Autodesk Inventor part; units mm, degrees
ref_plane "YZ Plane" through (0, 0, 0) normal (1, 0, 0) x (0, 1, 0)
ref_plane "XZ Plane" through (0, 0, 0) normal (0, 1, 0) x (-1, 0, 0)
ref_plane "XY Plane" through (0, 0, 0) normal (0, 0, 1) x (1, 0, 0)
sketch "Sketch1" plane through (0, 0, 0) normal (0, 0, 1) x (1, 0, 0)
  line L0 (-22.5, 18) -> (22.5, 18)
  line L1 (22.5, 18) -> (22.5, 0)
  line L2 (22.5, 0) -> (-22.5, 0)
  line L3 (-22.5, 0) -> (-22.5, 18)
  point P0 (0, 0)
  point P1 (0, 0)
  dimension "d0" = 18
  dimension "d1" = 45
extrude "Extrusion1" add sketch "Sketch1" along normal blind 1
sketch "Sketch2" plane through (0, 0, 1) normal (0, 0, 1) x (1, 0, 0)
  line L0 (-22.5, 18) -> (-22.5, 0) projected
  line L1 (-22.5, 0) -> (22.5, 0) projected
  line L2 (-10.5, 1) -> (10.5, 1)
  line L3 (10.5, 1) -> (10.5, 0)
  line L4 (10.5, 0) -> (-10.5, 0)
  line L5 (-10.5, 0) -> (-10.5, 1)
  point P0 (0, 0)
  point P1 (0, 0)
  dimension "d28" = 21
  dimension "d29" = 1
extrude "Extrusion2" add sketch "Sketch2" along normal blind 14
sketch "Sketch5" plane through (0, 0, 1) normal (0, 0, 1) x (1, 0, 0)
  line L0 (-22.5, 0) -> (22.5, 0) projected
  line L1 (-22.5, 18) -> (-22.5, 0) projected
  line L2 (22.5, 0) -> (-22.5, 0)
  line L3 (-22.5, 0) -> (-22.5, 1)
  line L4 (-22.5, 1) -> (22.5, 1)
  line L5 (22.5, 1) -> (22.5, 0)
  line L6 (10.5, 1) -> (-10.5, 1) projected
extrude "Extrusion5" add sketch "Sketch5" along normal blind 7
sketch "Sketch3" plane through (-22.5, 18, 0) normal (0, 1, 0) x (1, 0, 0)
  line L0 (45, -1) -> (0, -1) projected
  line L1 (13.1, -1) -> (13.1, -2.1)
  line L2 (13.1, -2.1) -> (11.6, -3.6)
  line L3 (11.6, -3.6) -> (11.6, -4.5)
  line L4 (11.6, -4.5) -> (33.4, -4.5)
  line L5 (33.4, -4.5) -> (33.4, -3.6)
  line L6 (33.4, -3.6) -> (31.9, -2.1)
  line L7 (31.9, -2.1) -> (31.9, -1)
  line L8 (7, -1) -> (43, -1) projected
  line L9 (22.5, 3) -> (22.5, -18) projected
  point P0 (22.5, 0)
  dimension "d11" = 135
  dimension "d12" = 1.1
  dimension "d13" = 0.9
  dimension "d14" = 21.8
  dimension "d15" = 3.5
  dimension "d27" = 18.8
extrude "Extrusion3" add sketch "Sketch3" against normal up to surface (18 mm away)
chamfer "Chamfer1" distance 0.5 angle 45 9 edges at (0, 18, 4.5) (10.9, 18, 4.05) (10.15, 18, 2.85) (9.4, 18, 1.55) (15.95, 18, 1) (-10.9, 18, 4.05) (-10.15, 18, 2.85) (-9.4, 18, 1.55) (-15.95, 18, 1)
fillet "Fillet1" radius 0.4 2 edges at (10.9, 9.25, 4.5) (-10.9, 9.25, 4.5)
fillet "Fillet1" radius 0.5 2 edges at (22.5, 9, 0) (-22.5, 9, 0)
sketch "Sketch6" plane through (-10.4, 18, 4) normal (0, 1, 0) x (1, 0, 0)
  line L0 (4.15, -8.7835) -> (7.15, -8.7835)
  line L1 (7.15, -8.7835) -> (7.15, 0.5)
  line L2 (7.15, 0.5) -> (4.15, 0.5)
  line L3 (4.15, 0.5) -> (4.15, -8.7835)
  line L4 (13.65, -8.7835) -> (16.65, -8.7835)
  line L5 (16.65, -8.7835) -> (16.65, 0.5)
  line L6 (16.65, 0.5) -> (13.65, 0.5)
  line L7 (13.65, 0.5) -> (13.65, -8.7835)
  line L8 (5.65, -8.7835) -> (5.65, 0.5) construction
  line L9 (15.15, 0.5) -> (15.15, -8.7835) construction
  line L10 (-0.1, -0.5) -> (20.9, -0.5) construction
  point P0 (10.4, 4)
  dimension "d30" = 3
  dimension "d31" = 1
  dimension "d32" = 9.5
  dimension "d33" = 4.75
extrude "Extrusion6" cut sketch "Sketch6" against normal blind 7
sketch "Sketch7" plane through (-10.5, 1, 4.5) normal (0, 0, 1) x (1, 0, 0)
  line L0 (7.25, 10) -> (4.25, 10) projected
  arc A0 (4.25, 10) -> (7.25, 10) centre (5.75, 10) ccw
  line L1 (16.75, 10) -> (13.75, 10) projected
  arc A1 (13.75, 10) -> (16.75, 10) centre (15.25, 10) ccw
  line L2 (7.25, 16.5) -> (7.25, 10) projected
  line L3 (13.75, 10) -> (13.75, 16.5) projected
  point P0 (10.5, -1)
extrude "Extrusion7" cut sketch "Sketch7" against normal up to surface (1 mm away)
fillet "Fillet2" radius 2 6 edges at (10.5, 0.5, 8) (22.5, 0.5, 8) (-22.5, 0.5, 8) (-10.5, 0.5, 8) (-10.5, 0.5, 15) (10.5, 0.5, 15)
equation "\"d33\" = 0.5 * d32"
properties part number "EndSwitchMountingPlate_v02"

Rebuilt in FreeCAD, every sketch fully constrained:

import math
import FreeCAD as App
import Part
import Sketcher

V = App.Vector
Q = App.Units.Quantity


def edges_at(feature, points):
    """Names of the edges that pass closest to the given points."""
    edges = feature.Shape.Edges
    near = lambda p: min(range(len(edges)), key=lambda i: edges[i].distToShape(Part.Vertex(*p))[0])
    return sorted({f"Edge{near(p) + 1}" for p in points})

doc = App.newDocument("Part")
params = doc.addObject("Spreadsheet::Sheet", "Params")
for row, (alias, value) in enumerate([
    ("sketch1_width", "45 mm"),
    ("sketch1_height", "18 mm"),
    ("pad1_length", "1 mm"),
    ("sketch2_width", "21 mm"),
    ("sketch2_height", "1 mm"),
    ("pad2_length", "14 mm"),
    ("sketch3_width", "45 mm"),
    ("sketch3_height", "1 mm"),
    ("pad3_length", "7 mm"),
    ("sketch4_width", "18.8 mm"),
    ("sketch4_width2", "21.8 mm"),
    ("sketch4_height", "1.1 mm"),
    ("sketch4_height2", "0.9 mm"),
    ("pad4_length", "18 mm"),
    ("chamfer_size", "0.5 mm"),
    ("fillet_radius", "0.4 mm"),
    ("fillet2_radius", "0.5 mm"),
    ("sketch5_width", "3 mm"),
    ("pocket1_length", "7 mm"),
    ("sketch6_radius", "1.5 mm"),
    ("pocket2_length", "1 mm"),
    ("fillet3_radius", "2 mm"),
], start=1):
    params.set(f"A{row}", alias)
    params.set(f"B{row}", "=" + value)
    params.setAlias(f"B{row}", alias)

body = doc.addObject("PartDesign::Body", "Body")

# Sketch on XY plane
sketch1 = doc.addObject("Sketcher::SketchObject", "Sketch")
body.addObject(sketch1)
sketch1.AttachmentSupport = (doc.XY_Plane, [""])
sketch1.MapMode = "FlatFace"
sketch1.addGeometry(Part.LineSegment(V(22, 18, 0), V(-22, 18, 0)), False)
sketch1.addGeometry(Part.LineSegment(V(-22, 18, 0), V(-22, 0, 0)), False)
sketch1.addGeometry(Part.LineSegment(V(-22, 0, 0), V(22, 0, 0)), False)
sketch1.addGeometry(Part.LineSegment(V(22, 0, 0), V(22, 18, 0)), False)
sketch1.addConstraint(Sketcher.Constraint("Coincident", 0, 2, 1, 1))
sketch1.addConstraint(Sketcher.Constraint("Coincident", 1, 2, 2, 1))
sketch1.addConstraint(Sketcher.Constraint("Coincident", 2, 2, 3, 1))
sketch1.addConstraint(Sketcher.Constraint("Coincident", 3, 2, 0, 1))
sketch1.addConstraint(Sketcher.Constraint("Horizontal", 0))
sketch1.addConstraint(Sketcher.Constraint("Vertical", 1))
sketch1.addConstraint(Sketcher.Constraint("Horizontal", 2))
sketch1.addConstraint(Sketcher.Constraint("Vertical", 3))
sketch1.addConstraint(Sketcher.Constraint("Symmetric", 1, 2, 2, 2, -1, 1))
sketch1.addConstraint(Sketcher.Constraint("DistanceX", 0, 2, 0, 1, Q("45 mm")))
sketch1.addConstraint(Sketcher.Constraint("DistanceY", 1, 2, 1, 1, Q("18 mm")))
sketch1.setExpression("Constraints[9]", "Params.sketch1_width")
sketch1.setExpression("Constraints[10]", "Params.sketch1_height")
pad1 = doc.addObject("PartDesign::Pad", "Pad")
body.addObject(pad1)
pad1.Profile = sketch1
pad1.setExpression("Length", "Params.pad1_length")

# Sketch on XY plane
sketch2 = doc.addObject("Sketcher::SketchObject", "Sketch001")
body.addObject(sketch2)
sketch2.AttachmentSupport = (doc.XY_Plane, [""])
sketch2.MapMode = "FlatFace"
sketch2.AttachmentOffset = App.Placement(V(0, 0, 1), App.Rotation())
sketch2.addGeometry(Part.LineSegment(V(-10.5, 1, 0), V(-10.5, 0, 0)), False)
sketch2.addGeometry(Part.LineSegment(V(-10.5, 0, 0), V(10.5, 0, 0)), False)
sketch2.addGeometry(Part.LineSegment(V(10.5, 0, 0), V(10.5, 1, 0)), False)
sketch2.addGeometry(Part.LineSegment(V(10.5, 1, 0), V(-10.5, 1, 0)), False)
sketch2.addConstraint(Sketcher.Constraint("Coincident", 0, 2, 1, 1))
sketch2.addConstraint(Sketcher.Constraint("Coincident", 1, 2, 2, 1))
sketch2.addConstraint(Sketcher.Constraint("Coincident", 2, 2, 3, 1))
sketch2.addConstraint(Sketcher.Constraint("Coincident", 3, 2, 0, 1))
sketch2.addConstraint(Sketcher.Constraint("Vertical", 0))
sketch2.addConstraint(Sketcher.Constraint("Horizontal", 1))
sketch2.addConstraint(Sketcher.Constraint("Vertical", 2))
sketch2.addConstraint(Sketcher.Constraint("Horizontal", 3))
sketch2.addConstraint(Sketcher.Constraint("Symmetric", 0, 2, 1, 2, -1, 1))
sketch2.addConstraint(Sketcher.Constraint("DistanceX", 1, 1, 1, 2, Q("21 mm")))
sketch2.addConstraint(Sketcher.Constraint("DistanceY", 0, 2, 0, 1, Q("1 mm")))
sketch2.setExpression("Constraints[9]", "Params.sketch2_width")
sketch2.setExpression("Constraints[10]", "Params.sketch2_height")
pad2 = doc.addObject("PartDesign::Pad", "Pad001")
body.addObject(pad2)
pad2.Profile = sketch2
pad2.setExpression("Length", "Params.pad2_length")

# Sketch on XY plane
sketch3 = doc.addObject("Sketcher::SketchObject", "Sketch002")
body.addObject(sketch3)
sketch3.AttachmentSupport = (doc.XY_Plane, [""])
sketch3.MapMode = "FlatFace"
sketch3.AttachmentOffset = App.Placement(V(0, 0, 1), App.Rotation())
sketch3.addGeometry(Part.LineSegment(V(-22.5, 1, 0), V(-22.5, 0, 0)), False)
sketch3.addGeometry(Part.LineSegment(V(-22.5, 0, 0), V(22.5, 0, 0)), False)
sketch3.addGeometry(Part.LineSegment(V(22.5, 0, 0), V(22.5, 1, 0)), False)
sketch3.addGeometry(Part.LineSegment(V(22.5, 1, 0), V(-22.5, 1, 0)), False)
sketch3.addConstraint(Sketcher.Constraint("Coincident", 0, 2, 1, 1))
sketch3.addConstraint(Sketcher.Constraint("Coincident", 1, 2, 2, 1))
sketch3.addConstraint(Sketcher.Constraint("Coincident", 2, 2, 3, 1))
sketch3.addConstraint(Sketcher.Constraint("Coincident", 3, 2, 0, 1))
sketch3.addConstraint(Sketcher.Constraint("Vertical", 0))
sketch3.addConstraint(Sketcher.Constraint("Horizontal", 1))
sketch3.addConstraint(Sketcher.Constraint("Vertical", 2))
sketch3.addConstraint(Sketcher.Constraint("Horizontal", 3))
sketch3.addConstraint(Sketcher.Constraint("Symmetric", 0, 2, 1, 2, -1, 1))
sketch3.addConstraint(Sketcher.Constraint("DistanceX", 1, 1, 1, 2, Q("45 mm")))
sketch3.addConstraint(Sketcher.Constraint("DistanceY", 0, 2, 0, 1, Q("1 mm")))
sketch3.setExpression("Constraints[9]", "Params.sketch3_width")
sketch3.setExpression("Constraints[10]", "Params.sketch3_height")
pad3 = doc.addObject("PartDesign::Pad", "Pad002")
body.addObject(pad3)
pad3.Profile = sketch3
pad3.setExpression("Length", "Params.pad3_length")

# Sketch on XZ plane
sketch4 = doc.addObject("Sketcher::SketchObject", "Sketch003")
body.addObject(sketch4)
sketch4.AttachmentSupport = (doc.XZ_Plane, [""])
sketch4.MapMode = "FlatFace"
sketch4.AttachmentOffset = App.Placement(V(0, 0, -18), App.Rotation())
sketch4.addGeometry(Part.LineSegment(V(9.4, 2.1, 0), V(9.4, 1, 0)), False)
sketch4.addGeometry(Part.LineSegment(V(9.4, 1, 0), V(-9.4, 1, 0)), False)
sketch4.addGeometry(Part.LineSegment(V(-9.4, 1, 0), V(-9.4, 2.1, 0)), False)
sketch4.addGeometry(Part.LineSegment(V(-9.4, 2.1, 0), V(-10.9, 3.6, 0)), False)
sketch4.addGeometry(Part.LineSegment(V(-10.9, 3.6, 0), V(-10.9, 4.5, 0)), False)
sketch4.addGeometry(Part.LineSegment(V(-10.9, 4.5, 0), V(10.9, 4.5, 0)), False)
sketch4.addGeometry(Part.LineSegment(V(10.9, 4.5, 0), V(10.9, 3.6, 0)), False)
sketch4.addGeometry(Part.LineSegment(V(10.9, 3.6, 0), V(9.4, 2.1, 0)), False)
sketch4.addConstraint(Sketcher.Constraint("Coincident", 0, 2, 1, 1))
sketch4.addConstraint(Sketcher.Constraint("Coincident", 1, 2, 2, 1))
sketch4.addConstraint(Sketcher.Constraint("Coincident", 2, 2, 3, 1))
sketch4.addConstraint(Sketcher.Constraint("Coincident", 3, 2, 4, 1))
sketch4.addConstraint(Sketcher.Constraint("Coincident", 4, 2, 5, 1))
sketch4.addConstraint(Sketcher.Constraint("Coincident", 5, 2, 6, 1))
sketch4.addConstraint(Sketcher.Constraint("Coincident", 6, 2, 7, 1))
sketch4.addConstraint(Sketcher.Constraint("Coincident", 7, 2, 0, 1))
sketch4.addConstraint(Sketcher.Constraint("Vertical", 0))
sketch4.addConstraint(Sketcher.Constraint("Horizontal", 1))
sketch4.addConstraint(Sketcher.Constraint("Vertical", 2))
sketch4.addConstraint(Sketcher.Constraint("Vertical", 4))
sketch4.addConstraint(Sketcher.Constraint("Horizontal", 5))
sketch4.addConstraint(Sketcher.Constraint("Vertical", 6))
sketch4.addConstraint(Sketcher.Constraint("Symmetric", 3, 2, 6, 2, -2))
sketch4.addConstraint(Sketcher.Constraint("Symmetric", 2, 2, 7, 2, -2))
sketch4.addConstraint(Sketcher.Constraint("Perpendicular", 3, 7))
sketch4.addConstraint(Sketcher.Constraint("DistanceX", 1, 2, 1, 1, Q("18.8 mm")))
sketch4.addConstraint(Sketcher.Constraint("DistanceX", 5, 1, 5, 2, Q("21.8 mm")))
sketch4.addConstraint(Sketcher.Constraint("DistanceY", 0, 2, 0, 1, Q("1.1 mm")))
sketch4.addConstraint(Sketcher.Constraint("DistanceY", 4, 1, 4, 2, Q("0.9 mm")))
sketch4.addConstraint(Sketcher.Constraint("DistanceY", -1, 1, 0, 2, Q("1 mm")))
sketch4.setExpression("Constraints[17]", "Params.sketch4_width")
sketch4.setExpression("Constraints[18]", "Params.sketch4_width2")
sketch4.setExpression("Constraints[19]", "Params.sketch4_height")
sketch4.setExpression("Constraints[20]", "Params.sketch4_height2")
pad4 = doc.addObject("PartDesign::Pad", "Pad003")
body.addObject(pad4)
pad4.Profile = sketch4
pad4.setExpression("Length", "Params.pad4_length")
doc.recompute()

chamfer = doc.addObject("PartDesign::Chamfer", "Chamfer")
body.addObject(chamfer)
chamfer.Base = (pad4, edges_at(pad4, [
    (0, 18, 4.5),
    (10.9, 18, 4.05),
    (10.15, 18, 2.85),
    (9.4, 18, 1.55),
    (15.95, 18, 1),
    (-10.9, 18, 4.05),
    (-10.15, 18, 2.85),
    (-9.4, 18, 1.55),
    (-15.95, 18, 1),
]))
chamfer.setExpression("Size", "Params.chamfer_size")
doc.recompute()

fillet = doc.addObject("PartDesign::Fillet", "Fillet")
body.addObject(fillet)
fillet.Base = (chamfer, edges_at(chamfer, [(10.9, 9.25, 4.5), (-10.9, 9.25, 4.5)]))
fillet.setExpression("Radius", "Params.fillet_radius")
doc.recompute()

fillet2 = doc.addObject("PartDesign::Fillet", "Fillet001")
body.addObject(fillet2)
fillet2.Base = (fillet, edges_at(fillet, [(22.5, 9, 0), (-22.5, 9, 0)]))
fillet2.setExpression("Radius", "Params.fillet2_radius")

# Sketch on XZ plane
sketch5 = doc.addObject("Sketcher::SketchObject", "Sketch004")
body.addObject(sketch5)
sketch5.AttachmentSupport = (doc.XZ_Plane, [""])
sketch5.MapMode = "FlatFace"
sketch5.AttachmentOffset = App.Placement(V(0, 0, -18), App.Rotation())
sketch5.addGeometry(Part.LineSegment(V(-6.2, 3.5, 0), V(-6.2, 12.8, 0)), False)
sketch5.addGeometry(Part.LineSegment(V(-6.2, 12.8, 0), V(-3.2, 12.8, 0)), False)
sketch5.addGeometry(Part.LineSegment(V(-3.2, 12.8, 0), V(-3.2, 3.5, 0)), False)
sketch5.addGeometry(Part.LineSegment(V(-3.2, 3.5, 0), V(-6.2, 3.5, 0)), False)
sketch5.addGeometry(Part.LineSegment(V(3.2, 3.5, 0), V(3.2, 12.8, 0)), False)
sketch5.addGeometry(Part.LineSegment(V(3.2, 12.8, 0), V(6.2, 12.8, 0)), False)
sketch5.addGeometry(Part.LineSegment(V(6.2, 12.8, 0), V(6.2, 3.5, 0)), False)
sketch5.addGeometry(Part.LineSegment(V(6.2, 3.5, 0), V(3.2, 3.5, 0)), False)
sketch5.addConstraint(Sketcher.Constraint("Coincident", 0, 2, 1, 1))
sketch5.addConstraint(Sketcher.Constraint("Coincident", 1, 2, 2, 1))
sketch5.addConstraint(Sketcher.Constraint("Coincident", 2, 2, 3, 1))
sketch5.addConstraint(Sketcher.Constraint("Coincident", 3, 2, 0, 1))
sketch5.addConstraint(Sketcher.Constraint("Coincident", 4, 2, 5, 1))
sketch5.addConstraint(Sketcher.Constraint("Coincident", 5, 2, 6, 1))
sketch5.addConstraint(Sketcher.Constraint("Coincident", 6, 2, 7, 1))
sketch5.addConstraint(Sketcher.Constraint("Coincident", 7, 2, 4, 1))
sketch5.addConstraint(Sketcher.Constraint("Vertical", 0))
sketch5.addConstraint(Sketcher.Constraint("Horizontal", 1))
sketch5.addConstraint(Sketcher.Constraint("Vertical", 2))
sketch5.addConstraint(Sketcher.Constraint("Horizontal", 3))
sketch5.addConstraint(Sketcher.Constraint("Vertical", 4))
sketch5.addConstraint(Sketcher.Constraint("Horizontal", 5))
sketch5.addConstraint(Sketcher.Constraint("Vertical", 6))
sketch5.addConstraint(Sketcher.Constraint("Horizontal", 7))
sketch5.addConstraint(Sketcher.Constraint("Symmetric", 1, 2, 4, 2, -2))
sketch5.addConstraint(Sketcher.Constraint("Symmetric", 3, 2, 6, 2, -2))
sketch5.addConstraint(Sketcher.Constraint("DistanceX", 1, 1, 1, 2, Q("3 mm")))
sketch5.addConstraint(Sketcher.Constraint("DistanceX", 0, 2, 4, 2, Q("9.5 mm")))
sketch5.addConstraint(Sketcher.Constraint("DistanceY", -1, 1, 2, 2, Q("3.5 mm")))
sketch5.addConstraint(Sketcher.Constraint("DistanceY", 0, 1, 0, 2, Q("9.2835 mm")))
sketch5.setExpression("Constraints[18]", "Params.sketch5_width")
pocket1 = doc.addObject("PartDesign::Pocket", "Pocket")
body.addObject(pocket1)
pocket1.Profile = sketch5
pocket1.setExpression("Length", "Params.pocket1_length")
pocket1.Reversed = True

# Sketch on XY plane
sketch6 = doc.addObject("Sketcher::SketchObject", "Sketch005")
body.addObject(sketch6)
sketch6.AttachmentSupport = (doc.XY_Plane, [""])
sketch6.MapMode = "FlatFace"
sketch6.AttachmentOffset = App.Placement(V(0, 0, 4.5), App.Rotation())
sketch6.addGeometry(Part.ArcOfCircle(Part.Circle(V(-4.8, 11, 0), V(0, 0, 1), 1.5), math.radians(180), math.radians(360)), False)
sketch6.addGeometry(Part.LineSegment(V(-3.2, 11, 0), V(-6.2, 11, 0)), False)
sketch6.addGeometry(Part.ArcOfCircle(Part.Circle(V(4.8, 11, 0), V(0, 0, 1), 1.5), math.radians(180), math.radians(360)), False)
sketch6.addGeometry(Part.LineSegment(V(6.2, 11, 0), V(3.2, 11, 0)), False)
sketch6.addConstraint(Sketcher.Constraint("Coincident", 0, 1, 1, 2))
sketch6.addConstraint(Sketcher.Constraint("Coincident", 1, 1, 0, 2))
sketch6.addConstraint(Sketcher.Constraint("Coincident", 2, 1, 3, 2))
sketch6.addConstraint(Sketcher.Constraint("Coincident", 3, 1, 2, 2))
sketch6.addConstraint(Sketcher.Constraint("Horizontal", 1))
sketch6.addConstraint(Sketcher.Constraint("Horizontal", 3))
sketch6.addConstraint(Sketcher.Constraint("Equal", 0, 2))
sketch6.addConstraint(Sketcher.Constraint("Symmetric", 0, 3, 2, 3, -2))
sketch6.addConstraint(Sketcher.Constraint("Horizontal", 2, 3, 0, 1))
sketch6.addConstraint(Sketcher.Constraint("Horizontal", 1, 1, 2, 1))
sketch6.addConstraint(Sketcher.Constraint("Radius", 0, Q("1.5 mm")))
sketch6.addConstraint(Sketcher.Constraint("DistanceY", -1, 1, 0, 3, Q("11 mm")))
sketch6.addConstraint(Sketcher.Constraint("DistanceX", 0, 1, 2, 3, Q("11 mm")))
sketch6.setExpression("Constraints[10]", "Params.sketch6_radius")
pocket2 = doc.addObject("PartDesign::Pocket", "Pocket001")
body.addObject(pocket2)
pocket2.Profile = sketch6
pocket2.setExpression("Length", "Params.pocket2_length")
doc.recompute()

fillet3 = doc.addObject("PartDesign::Fillet", "Fillet002")
body.addObject(fillet3)
fillet3.Base = (pocket2, edges_at(pocket2, [
    (10.5, 0.5, 8),
    (22.5, 0.5, 8),
    (-22.5, 0.5, 8),
    (-10.5, 0.5, 8),
    (-10.5, 0.5, 15),
    (10.5, 0.5, 15),
]))
fillet3.setExpression("Radius", "Params.fillet3_radius")

doc.recompute()
